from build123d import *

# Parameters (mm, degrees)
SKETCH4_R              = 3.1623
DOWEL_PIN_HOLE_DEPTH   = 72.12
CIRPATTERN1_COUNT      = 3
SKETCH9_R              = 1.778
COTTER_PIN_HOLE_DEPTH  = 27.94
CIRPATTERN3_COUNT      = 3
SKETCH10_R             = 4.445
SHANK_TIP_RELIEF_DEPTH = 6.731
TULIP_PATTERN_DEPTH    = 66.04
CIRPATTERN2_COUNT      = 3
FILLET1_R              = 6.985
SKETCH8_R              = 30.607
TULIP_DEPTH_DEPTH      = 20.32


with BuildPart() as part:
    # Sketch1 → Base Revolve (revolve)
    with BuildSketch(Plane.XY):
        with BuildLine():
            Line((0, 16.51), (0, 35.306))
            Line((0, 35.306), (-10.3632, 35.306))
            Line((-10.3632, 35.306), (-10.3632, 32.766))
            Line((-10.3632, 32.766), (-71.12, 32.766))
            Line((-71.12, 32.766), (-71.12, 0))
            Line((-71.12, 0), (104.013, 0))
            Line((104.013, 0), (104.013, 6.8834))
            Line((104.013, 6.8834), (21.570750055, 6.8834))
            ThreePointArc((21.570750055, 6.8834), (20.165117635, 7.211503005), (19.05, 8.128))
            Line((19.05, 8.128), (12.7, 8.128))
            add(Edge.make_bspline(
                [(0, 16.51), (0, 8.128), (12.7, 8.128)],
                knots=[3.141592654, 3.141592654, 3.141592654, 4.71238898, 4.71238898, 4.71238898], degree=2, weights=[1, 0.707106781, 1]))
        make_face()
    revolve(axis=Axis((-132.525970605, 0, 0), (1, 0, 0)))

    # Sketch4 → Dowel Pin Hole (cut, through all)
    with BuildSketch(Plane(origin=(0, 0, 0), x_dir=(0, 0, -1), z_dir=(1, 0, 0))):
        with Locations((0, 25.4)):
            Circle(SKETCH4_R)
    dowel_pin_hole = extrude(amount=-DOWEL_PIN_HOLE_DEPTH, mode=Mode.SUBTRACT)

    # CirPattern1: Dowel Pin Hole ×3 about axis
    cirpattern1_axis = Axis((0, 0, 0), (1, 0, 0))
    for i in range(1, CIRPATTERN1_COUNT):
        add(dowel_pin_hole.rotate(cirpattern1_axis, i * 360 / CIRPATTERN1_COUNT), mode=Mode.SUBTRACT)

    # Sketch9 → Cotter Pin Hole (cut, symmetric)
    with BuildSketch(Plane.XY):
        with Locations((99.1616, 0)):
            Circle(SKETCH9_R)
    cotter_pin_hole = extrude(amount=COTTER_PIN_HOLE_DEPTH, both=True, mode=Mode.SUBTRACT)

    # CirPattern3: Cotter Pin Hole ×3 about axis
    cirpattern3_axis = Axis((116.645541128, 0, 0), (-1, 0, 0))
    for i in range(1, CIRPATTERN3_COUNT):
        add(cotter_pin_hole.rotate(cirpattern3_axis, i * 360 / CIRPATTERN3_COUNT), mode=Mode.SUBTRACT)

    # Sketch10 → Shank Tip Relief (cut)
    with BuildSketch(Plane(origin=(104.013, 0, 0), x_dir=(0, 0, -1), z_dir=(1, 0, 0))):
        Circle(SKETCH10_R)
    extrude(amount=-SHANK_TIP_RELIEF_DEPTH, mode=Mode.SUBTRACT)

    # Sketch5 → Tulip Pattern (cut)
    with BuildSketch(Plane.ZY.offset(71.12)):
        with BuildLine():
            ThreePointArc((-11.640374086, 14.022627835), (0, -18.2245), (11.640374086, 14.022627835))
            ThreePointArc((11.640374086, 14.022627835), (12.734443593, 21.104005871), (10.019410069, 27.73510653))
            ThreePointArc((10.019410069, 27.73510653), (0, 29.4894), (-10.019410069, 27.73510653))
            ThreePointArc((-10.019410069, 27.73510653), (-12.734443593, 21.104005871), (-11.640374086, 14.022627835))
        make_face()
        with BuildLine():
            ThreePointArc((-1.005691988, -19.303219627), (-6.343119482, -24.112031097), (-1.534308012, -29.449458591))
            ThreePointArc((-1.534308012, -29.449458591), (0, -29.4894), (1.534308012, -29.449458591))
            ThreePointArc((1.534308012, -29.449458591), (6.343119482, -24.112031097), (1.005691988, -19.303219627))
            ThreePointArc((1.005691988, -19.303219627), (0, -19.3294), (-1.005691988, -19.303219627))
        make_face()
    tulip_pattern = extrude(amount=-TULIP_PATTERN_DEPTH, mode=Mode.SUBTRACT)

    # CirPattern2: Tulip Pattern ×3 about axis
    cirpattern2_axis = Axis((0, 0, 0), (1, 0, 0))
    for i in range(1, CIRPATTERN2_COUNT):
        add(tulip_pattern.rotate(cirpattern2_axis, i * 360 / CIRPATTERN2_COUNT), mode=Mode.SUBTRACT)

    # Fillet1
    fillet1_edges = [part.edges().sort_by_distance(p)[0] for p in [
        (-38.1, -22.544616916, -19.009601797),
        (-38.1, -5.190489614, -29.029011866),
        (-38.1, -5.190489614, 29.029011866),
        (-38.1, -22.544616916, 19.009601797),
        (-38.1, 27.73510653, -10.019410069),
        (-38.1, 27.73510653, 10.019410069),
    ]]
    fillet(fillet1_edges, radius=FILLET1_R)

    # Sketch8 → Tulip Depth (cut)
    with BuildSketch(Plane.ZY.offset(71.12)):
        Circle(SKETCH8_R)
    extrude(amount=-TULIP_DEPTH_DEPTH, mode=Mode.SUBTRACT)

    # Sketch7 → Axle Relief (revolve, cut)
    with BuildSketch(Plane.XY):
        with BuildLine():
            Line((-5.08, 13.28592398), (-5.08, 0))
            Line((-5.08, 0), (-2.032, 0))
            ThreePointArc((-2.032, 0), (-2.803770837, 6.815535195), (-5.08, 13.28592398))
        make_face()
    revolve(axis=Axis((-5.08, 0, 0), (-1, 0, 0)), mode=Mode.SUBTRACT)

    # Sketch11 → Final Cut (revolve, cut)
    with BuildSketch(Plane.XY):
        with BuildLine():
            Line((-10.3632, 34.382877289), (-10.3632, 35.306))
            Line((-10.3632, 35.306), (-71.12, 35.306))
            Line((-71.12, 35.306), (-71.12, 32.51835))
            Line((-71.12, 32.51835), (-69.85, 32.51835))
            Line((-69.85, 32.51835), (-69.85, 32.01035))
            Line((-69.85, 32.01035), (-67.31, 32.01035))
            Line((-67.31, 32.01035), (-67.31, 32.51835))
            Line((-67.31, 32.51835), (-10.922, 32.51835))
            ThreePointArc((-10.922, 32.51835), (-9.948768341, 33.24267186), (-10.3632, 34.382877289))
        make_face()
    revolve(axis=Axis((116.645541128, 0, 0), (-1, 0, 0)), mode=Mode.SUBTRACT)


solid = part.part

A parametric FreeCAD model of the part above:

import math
import FreeCAD as App
import Part
import Sketcher

V = App.Vector
Q = App.Units.Quantity


def edges_at(feature, points):
    """Names of the edges that pass closest to the given points."""
    edges = feature.Shape.Edges
    near = lambda p: min(range(len(edges)), key=lambda i: edges[i].distToShape(Part.Vertex(*p))[0])
    return sorted({f"Edge{near(p) + 1}" for p in points})

doc = App.newDocument("Part")
body = doc.addObject("PartDesign::Body", "Body")

sketch1 = doc.addObject("Sketcher::SketchObject", "Sketch")
body.addObject(sketch1)
sketch1.AttachmentSupport = (doc.XY_Plane, [""])
sketch1.MapMode = "FlatFace"
sketch1.addGeometry(Part.LineSegment(V(0, 16.51, 0), V(0, 35.306, 0)), False)
sketch1.addGeometry(Part.LineSegment(V(0, 35.306, 0), V(-10.3632, 35.306, 0)), False)
sketch1.addGeometry(Part.LineSegment(V(-10.3632, 35.306, 0), V(-10.3632, 32.766, 0)), False)
sketch1.addGeometry(Part.LineSegment(V(-10.3632, 32.766, 0), V(-71.12, 32.766, 0)), False)
sketch1.addGeometry(Part.LineSegment(V(-71.12, 32.766, 0), V(-71.12, 0, 0)), False)
sketch1.addGeometry(Part.LineSegment(V(-71.12, 0, 0), V(104.013, 0, 0)), False)
sketch1.addGeometry(Part.LineSegment(V(104.013, 0, 0), V(104.013, 6.8834, 0)), False)
sketch1.addGeometry(Part.LineSegment(V(104.013, 6.8834, 0), V(21.57075, 6.8834, 0)), False)
sketch1.addGeometry(Part.ArcOfCircle(Part.Circle(V(21.57075, 10.0584, 0), V(0, 0, 1), 3.175), math.radians(-142.55497), math.radians(-90)), False)
sketch1.addGeometry(Part.LineSegment(V(19.05, 8.128, 0), V(12.7, 8.128, 0)), False)
sketch1.addGeometry(Part.BSplineCurve([V(0, 16.51, 0), V(0, 8.128, 0), V(12.7, 8.128, 0)], [3, 3], [3.141592654, 4.71238898], False, 2, [1, 0.707106781, 1], False), False)
sketch1.addConstraint(Sketcher.Constraint("Block", 10))
sketch1.addConstraint(Sketcher.Constraint("Coincident", 0, 2, 1, 1))
sketch1.addConstraint(Sketcher.Constraint("Coincident", 1, 2, 2, 1))
sketch1.addConstraint(Sketcher.Constraint("Coincident", 2, 2, 3, 1))
sketch1.addConstraint(Sketcher.Constraint("Coincident", 3, 2, 4, 1))
sketch1.addConstraint(Sketcher.Constraint("Coincident", 4, 2, 5, 1))
sketch1.addConstraint(Sketcher.Constraint("Coincident", 5, 2, 6, 1))
sketch1.addConstraint(Sketcher.Constraint("Coincident", 6, 2, 7, 1))
sketch1.addConstraint(Sketcher.Constraint("Tangent", 7, 2, 8, 2))
sketch1.addConstraint(Sketcher.Constraint("Coincident", 8, 1, 9, 1))
sketch1.addConstraint(Sketcher.Constraint("Coincident", 9, 2, 10, 2))
sketch1.addConstraint(Sketcher.Constraint("Coincident", 10, 1, 0, 1))
sketch1.addConstraint(Sketcher.Constraint("Vertical", 0))
sketch1.addConstraint(Sketcher.Constraint("Horizontal", 1))
sketch1.addConstraint(Sketcher.Constraint("Vertical", 2))
sketch1.addConstraint(Sketcher.Constraint("Horizontal", 3))
sketch1.addConstraint(Sketcher.Constraint("Vertical", 4))
sketch1.addConstraint(Sketcher.Constraint("Horizontal", 5))
sketch1.addConstraint(Sketcher.Constraint("Vertical", 6))
sketch1.addConstraint(Sketcher.Constraint("Horizontal", 7))
sketch1.addConstraint(Sketcher.Constraint("Horizontal", 9))
sketch1.addConstraint(Sketcher.Constraint("PointOnObject", 4, 2, -1))
sketch1.addConstraint(Sketcher.Constraint("DistanceY", 2, 2, 2, 1, Q("0.1 in")))
sketch1.addConstraint(Sketcher.Constraint("Radius", 8, Q("0.125 in")))
sketch1.addConstraint(Sketcher.Constraint("DistanceX", 9, 2, 9, 1, Q("0.25 in")))
sketch1.addConstraint(Sketcher.Constraint("DistanceY", 0, 1, 0, 2, Q("0.74 in")))
sketch1.addConstraint(Sketcher.Constraint("DistanceX", 3, 2, -1, 1, Q("2.8 in")))
sketch1.addConstraint(Sketcher.Constraint("DistanceX", 1, 2, 1, 1, Q("0.408 in")))
sketch1.addConstraint(Sketcher.Constraint("DistanceX", 5, 1, 5, 2, Q("6.895 in")))
sketch1.addConstraint(Sketcher.Constraint("DistanceY", 6, 1, 6, 2, Q("0.271 in")))
revolution = doc.addObject("PartDesign::Revolution", "Revolution")
body.addObject(revolution)
revolution.Profile = sketch1
revolution.ReferenceAxis = (sketch1, ["H_Axis"])
revolution.Angle = 360

sketch2 = doc.addObject("Sketcher::SketchObject", "Sketch001")
body.addObject(sketch2)
sketch2.AttachmentSupport = (doc.YZ_Plane, [""])
sketch2.MapMode = "FlatFace"
sketch2.addGeometry(Part.Circle(V(25.4, 0, 0), V(0, 0, 1), 3.2), False)
sketch2.addConstraint(Sketcher.Constraint("PointOnObject", 0, 3, -1))
sketch2.addConstraint(Sketcher.Constraint("Diameter", 0, Q("0.249 in")))
sketch2.addConstraint(Sketcher.Constraint("DistanceX", -1, 1, 0, 3, Q("1 in")))
pocket1 = doc.addObject("PartDesign::Pocket", "Pocket")
body.addObject(pocket1)
pocket1.Profile = sketch2
pocket1.Type = "ThroughAll"
doc.recompute()

polarpattern = doc.addObject("PartDesign::PolarPattern", "PolarPattern")
body.addObject(polarpattern)
polarpattern.Originals = [pocket1]
polarpattern.Axis = (doc.X_Axis, [""])
polarpattern.Angle = 360
polarpattern.Occurrences = 3
body.Tip = polarpattern

sketch3 = doc.addObject("Sketcher::SketchObject", "Sketch002")
body.addObject(sketch3)
sketch3.AttachmentSupport = (doc.XY_Plane, [""])
sketch3.MapMode = "FlatFace"
sketch3.addGeometry(Part.Circle(V(99.2, 0, 0), V(0, 0, 1), 1.8), False)
sketch3.addConstraint(Sketcher.Constraint("PointOnObject", 0, 3, -1))
sketch3.addConstraint(Sketcher.Constraint("Diameter", 0, Q("0.14 in")))
sketch3.addConstraint(Sketcher.Constraint("DistanceX", -1, 1, 0, 3, Q("3.904 in")))
pocket2 = doc.addObject("PartDesign::Pocket", "Pocket001")
body.addObject(pocket2)
pocket2.Profile = sketch3
pocket2.Length = Q("2.2 in")
pocket2.Midplane = True
doc.recompute()

polarpattern2 = doc.addObject("PartDesign::PolarPattern", "PolarPattern001")
body.addObject(polarpattern2)
polarpattern2.Originals = [pocket2]
polarpattern2.Axis = (doc.X_Axis, [""])
polarpattern2.Angle = 360
polarpattern2.Occurrences = 3
body.Tip = polarpattern2

sketch4 = doc.addObject("Sketcher::SketchObject", "Sketch003")
body.addObject(sketch4)
sketch4.AttachmentSupport = (doc.YZ_Plane, [""])
sketch4.MapMode = "FlatFace"
sketch4.AttachmentOffset = App.Placement(V(0, 0, 4.095 * 25.4), App.Rotation())
sketch4.addGeometry(Part.Circle(V(0, 0, 0), V(0, 0, 1), 4.4), False)
sketch4.addConstraint(Sketcher.Constraint("Coincident", 0, 3, -1, 1))
sketch4.addConstraint(Sketcher.Constraint("Diameter", 0, Q("0.35 in")))
pocket3 = doc.addObject("PartDesign::Pocket", "Pocket002")
body.addObject(pocket3)
pocket3.Profile = sketch4
pocket3.Length = Q("0.265 in")

sketch5 = doc.addObject("Sketcher::SketchObject", "Sketch004")
body.addObject(sketch5)
sketch5.AttachmentSupport = (doc.YZ_Plane, [""])
sketch5.MapMode = "FlatFace"
sketch5.AttachmentOffset = App.Placement(V(0, 0, -2.8 * 25.4), App.Rotation())
sketch5.addGeometry(Part.ArcOfCircle(Part.Circle(V(0, 0, 0), V(0, 0, 1), 18.2), math.radians(40), math.radians(320)), False)
sketch5.addGeometry(Part.ArcOfCircle(Part.Circle(V(19.5, -0.6, 0), V(0, 0, 1), 13.4), math.radians(52), math.radians(114)), False)
sketch5.addGeometry(Part.ArcOfCircle(Part.Circle(V(0, 0, 0), V(0, 0, 1), 29.5), math.radians(-20), math.radians(20)), False)
sketch5.addGeometry(Part.ArcOfCircle(Part.Circle(V(19.5, 0.6, 0), V(0, 0, 1), 13.4), math.radians(-114), math.radians(-52)), False)
sketch5.addGeometry(Part.ArcOfCircle(Part.Circle(V(-24.4, -1.3, 0), V(0, 0, 1), 5.1), math.radians(-177), math.radians(3)), False)
sketch5.addGeometry(Part.ArcOfCircle(Part.Circle(V(0, 0, 0), V(0, 0, 1), 29.5), math.radians(177.02), math.radians(182.98)), False)
sketch5.addGeometry(Part.ArcOfCircle(Part.Circle(V(-24.4, 1.3, 0), V(0, 0, 1), 5.1), math.radians(-3), math.radians(177)), False)
sketch5.addGeometry(Part.ArcOfCircle(Part.Circle(V(0, 0, 0), V(0, 0, 1), 19.3), math.radians(177.02), math.radians(182.98)), False)
sketch5.addConstraint(Sketcher.Constraint("Coincident", 0, 1, 1, 2))
sketch5.addConstraint(Sketcher.Constraint("Coincident", 1, 1, 2, 2))
sketch5.addConstraint(Sketcher.Constraint("Coincident", 2, 1, 3, 2))
sketch5.addConstraint(Sketcher.Constraint("Coincident", 3, 1, 0, 2))
sketch5.addConstraint(Sketcher.Constraint("Tangent", 4, 1, 5, 2))
sketch5.addConstraint(Sketcher.Constraint("Tangent", 5, 1, 6, 2))
sketch5.addConstraint(Sketcher.Constraint("Tangent", 6, 1, 7, 1))
sketch5.addConstraint(Sketcher.Constraint("Tangent", 7, 2, 4, 2))
sketch5.addConstraint(Sketcher.Constraint("Coincident", 0, 3, -1, 1))
sketch5.addConstraint(Sketcher.Constraint("Coincident", 2, 3, -1, 1))
sketch5.addConstraint(Sketcher.Constraint("Coincident", 5, 3, -1, 1))
sketch5.addConstraint(Sketcher.Constraint("Coincident", 7, 3, -1, 1))
sketch5.addConstraint(Sketcher.Constraint("Equal", 1, 3))
sketch5.addConstraint(Sketcher.Constraint("Equal", 2, 5))
sketch5.addConstraint(Sketcher.Constraint("Symmetric", 1, 3, 3, 3, -1))
sketch5.addConstraint(Sketcher.Constraint("Vertical", 4, 3, 6, 3))
sketch5.addConstraint(Sketcher.Constraint("Radius", 4, Q("0.2 in")))
sketch5.addConstraint(Sketcher.Constraint("Radius", 1, Q("0.527 in")))
sketch5.addConstraint(Sketcher.Constraint("Radius", 2, Q("1.161 in")))
sketch5.addConstraint(Sketcher.Constraint("Radius", 0, Q("0.7175 in")))
sketch5.addConstraint(Sketcher.Constraint("DistanceY", 4, 3, 6, 3, Q("0.1 in")))
sketch5.addConstraint(Sketcher.Constraint("DistanceX", -1, 1, 1, 3, Q("0.769 in")))
sketch5.addConstraint(Sketcher.Constraint("DistanceY", 1, 3, -1, 1, Q("0.022 in")))
pocket4 = doc.addObject("PartDesign::Pocket", "Pocket003")
body.addObject(pocket4)
pocket4.Profile = sketch5
pocket4.Length = Q("2.6 in")
pocket4.Reversed = True
doc.recompute()

polarpattern3 = doc.addObject("PartDesign::PolarPattern", "PolarPattern002")
body.addObject(polarpattern3)
polarpattern3.Originals = [pocket4]
polarpattern3.Axis = (doc.X_Axis, [""])
polarpattern3.Angle = 360
polarpattern3.Occurrences = 3
body.Tip = polarpattern3
doc.recompute()

fillet = doc.addObject("PartDesign::Fillet", "Fillet")
body.addObject(fillet)
fillet.Base = (polarpattern3, edges_at(polarpattern3, [
    (-38.1, -22.545, -19.01),
    (-38.1, -5.19, -29.029),
    (-38.1, -5.19, 29.029),
    (-38.1, -22.545, 19.01),
    (-38.1, 27.735, -10.019),
    (-38.1, 27.735, 10.019),
]))
fillet.Radius = Q("0.275 in")

sketch6 = doc.addObject("Sketcher::SketchObject", "Sketch005")
body.addObject(sketch6)
sketch6.AttachmentSupport = (doc.YZ_Plane, [""])
sketch6.MapMode = "FlatFace"
sketch6.AttachmentOffset = App.Placement(V(0, 0, -2.8 * 25.4), App.Rotation())
sketch6.addGeometry(Part.Circle(V(0, 0, 0), V(0, 0, 1), 31), False)
sketch6.addConstraint(Sketcher.Constraint("Coincident", 0, 3, -1, 1))
sketch6.addConstraint(Sketcher.Constraint("Diameter", 0, Q("2.41 in")))
pocket5 = doc.addObject("PartDesign::Pocket", "Pocket004")
body.addObject(pocket5)
pocket5.Profile = sketch6
pocket5.Length = Q("0.8 in")
pocket5.Reversed = True

sketch7 = doc.addObject("Sketcher::SketchObject", "Sketch006")
body.addObject(sketch7)
sketch7.AttachmentSupport = (doc.XY_Plane, [""])
sketch7.MapMode = "FlatFace"
sketch7.addGeometry(Part.LineSegment(V(-5.1, 13.3, 0), V(-5.1, 0, 0)), False)
sketch7.addGeometry(Part.LineSegment(V(-5.1, 0, 0), V(-2, 0, 0)), False)
sketch7.addGeometry(Part.ArcOfCircle(Part.Circle(V(-32.5, 0, 0), V(0, 0, 1), 30.5), math.radians(0), math.radians(26)), False)
sketch7.addConstraint(Sketcher.Constraint("Coincident", 0, 2, 1, 1))
sketch7.addConstraint(Sketcher.Constraint("Coincident", 1, 2, 2, 1))
sketch7.addConstraint(Sketcher.Constraint("Coincident", 2, 2, 0, 1))
sketch7.addConstraint(Sketcher.Constraint("Vertical", 0))
sketch7.addConstraint(Sketcher.Constraint("Horizontal", 1))
sketch7.addConstraint(Sketcher.Constraint("PointOnObject", 2, 3, -1))
sketch7.addConstraint(Sketcher.Constraint("PointOnObject", 0, 2, -1))
sketch7.addConstraint(Sketcher.Constraint("Radius", 2, Q("1.2 in")))
sketch7.addConstraint(Sketcher.Constraint("DistanceX", 1, 1, 1, 2, Q("0.12 in")))
sketch7.addConstraint(Sketcher.Constraint("DistanceX", 0, 2, -1, 1, Q("0.2 in")))
groove = doc.addObject("PartDesign::Groove", "Groove")
body.addObject(groove)
groove.Profile = sketch7
groove.ReferenceAxis = (sketch7, ["H_Axis"])
groove.Angle = 360

sketch8 = doc.addObject("Sketcher::SketchObject", "Sketch007")
body.addObject(sketch8)
sketch8.AttachmentSupport = (doc.XY_Plane, [""])
sketch8.MapMode = "FlatFace"
sketch8.addGeometry(Part.LineSegment(V(-10.4, 34.4, 0), V(-10.4, 35.3, 0)), False)
sketch8.addGeometry(Part.LineSegment(V(-10.4, 35.3, 0), V(-71.1, 35.3, 0)), False)
sketch8.addGeometry(Part.LineSegment(V(-71.1, 35.3, 0), V(-71.1, 32.5, 0)), False)
sketch8.addGeometry(Part.LineSegment(V(-71.1, 32.5, 0), V(-69.8, 32.5, 0)), False)
sketch8.addGeometry(Part.LineSegment(V(-69.8, 32.5, 0), V(-69.8, 32, 0)), False)
sketch8.addGeometry(Part.LineSegment(V(-69.8, 32, 0), V(-67.3, 32, 0)), False)
sketch8.addGeometry(Part.LineSegment(V(-67.3, 32, 0), V(-67.3, 32.5, 0)), False)
sketch8.addGeometry(Part.LineSegment(V(-67.3, 32.5, 0), V(-10.9, 32.5, 0)), False)
sketch8.addGeometry(Part.ArcOfCircle(Part.Circle(V(-10.9, 33.5, 0), V(0, 0, 1), 1), math.radians(-90), math.radians(57)), False)
sketch8.addConstraint(Sketcher.Constraint("Coincident", 0, 2, 1, 1))
sketch8.addConstraint(Sketcher.Constraint("Coincident", 1, 2, 2, 1))
sketch8.addConstraint(Sketcher.Constraint("Coincident", 2, 2, 3, 1))
sketch8.addConstraint(Sketcher.Constraint("Coincident", 3, 2, 4, 1))
sketch8.addConstraint(Sketcher.Constraint("Coincident", 4, 2, 5, 1))
sketch8.addConstraint(Sketcher.Constraint("Coincident", 5, 2, 6, 1))
sketch8.addConstraint(Sketcher.Constraint("Coincident", 6, 2, 7, 1))
sketch8.addConstraint(Sketcher.Constraint("Tangent", 7, 2, 8, 1))
sketch8.addConstraint(Sketcher.Constraint("Coincident", 8, 2, 0, 1))
sketch8.addConstraint(Sketcher.Constraint("Vertical", 0))
sketch8.addConstraint(Sketcher.Constraint("Horizontal", 1))
sketch8.addConstraint(Sketcher.Constraint("Vertical", 2))
sketch8.addConstraint(Sketcher.Constraint("Horizontal", 3))
sketch8.addConstraint(Sketcher.Constraint("Vertical", 4))
sketch8.addConstraint(Sketcher.Constraint("Horizontal", 5))
sketch8.addConstraint(Sketcher.Constraint("Vertical", 6))
sketch8.addConstraint(Sketcher.Constraint("Horizontal", 7))
sketch8.addConstraint(Sketcher.Constraint("Horizontal", 3, 2, 6, 2))
sketch8.addConstraint(Sketcher.Constraint("Radius", 8, Q("0.04 in")))
sketch8.addConstraint(Sketcher.Constraint("DistanceX", 5, 1, 5, 2, Q("0.1 in")))
sketch8.addConstraint(Sketcher.Constraint("DistanceX", 3, 1, 3, 2, Q("0.05 in")))
sketch8.addConstraint(Sketcher.Constraint("DistanceX", 7, 1, 7, 2, Q("2.22 in")))
sketch8.addConstraint(Sketcher.Constraint("DistanceY", 4, 2, 4, 1, Q("0.02 in")))
sketch8.addConstraint(Sketcher.Constraint("DistanceX", 1, 2, -1, 1, Q("2.8 in")))
sketch8.addConstraint(Sketcher.Constraint("DistanceX", 1, 2, 1, 1, Q("2.392 in")))
sketch8.addConstraint(Sketcher.Constraint("DistanceY", -1, 1, 0, 2, Q("1.39 in")))
sketch8.addConstraint(Sketcher.Constraint("DistanceY", 2, 2, 2, 1, Q("2.78765 mm")))
groove2 = doc.addObject("PartDesign::Groove", "Groove001")
body.addObject(groove2)
groove2.Profile = sketch8
groove2.ReferenceAxis = (sketch8, ["H_Axis"])
groove2.Angle = 360

doc.recompute()
